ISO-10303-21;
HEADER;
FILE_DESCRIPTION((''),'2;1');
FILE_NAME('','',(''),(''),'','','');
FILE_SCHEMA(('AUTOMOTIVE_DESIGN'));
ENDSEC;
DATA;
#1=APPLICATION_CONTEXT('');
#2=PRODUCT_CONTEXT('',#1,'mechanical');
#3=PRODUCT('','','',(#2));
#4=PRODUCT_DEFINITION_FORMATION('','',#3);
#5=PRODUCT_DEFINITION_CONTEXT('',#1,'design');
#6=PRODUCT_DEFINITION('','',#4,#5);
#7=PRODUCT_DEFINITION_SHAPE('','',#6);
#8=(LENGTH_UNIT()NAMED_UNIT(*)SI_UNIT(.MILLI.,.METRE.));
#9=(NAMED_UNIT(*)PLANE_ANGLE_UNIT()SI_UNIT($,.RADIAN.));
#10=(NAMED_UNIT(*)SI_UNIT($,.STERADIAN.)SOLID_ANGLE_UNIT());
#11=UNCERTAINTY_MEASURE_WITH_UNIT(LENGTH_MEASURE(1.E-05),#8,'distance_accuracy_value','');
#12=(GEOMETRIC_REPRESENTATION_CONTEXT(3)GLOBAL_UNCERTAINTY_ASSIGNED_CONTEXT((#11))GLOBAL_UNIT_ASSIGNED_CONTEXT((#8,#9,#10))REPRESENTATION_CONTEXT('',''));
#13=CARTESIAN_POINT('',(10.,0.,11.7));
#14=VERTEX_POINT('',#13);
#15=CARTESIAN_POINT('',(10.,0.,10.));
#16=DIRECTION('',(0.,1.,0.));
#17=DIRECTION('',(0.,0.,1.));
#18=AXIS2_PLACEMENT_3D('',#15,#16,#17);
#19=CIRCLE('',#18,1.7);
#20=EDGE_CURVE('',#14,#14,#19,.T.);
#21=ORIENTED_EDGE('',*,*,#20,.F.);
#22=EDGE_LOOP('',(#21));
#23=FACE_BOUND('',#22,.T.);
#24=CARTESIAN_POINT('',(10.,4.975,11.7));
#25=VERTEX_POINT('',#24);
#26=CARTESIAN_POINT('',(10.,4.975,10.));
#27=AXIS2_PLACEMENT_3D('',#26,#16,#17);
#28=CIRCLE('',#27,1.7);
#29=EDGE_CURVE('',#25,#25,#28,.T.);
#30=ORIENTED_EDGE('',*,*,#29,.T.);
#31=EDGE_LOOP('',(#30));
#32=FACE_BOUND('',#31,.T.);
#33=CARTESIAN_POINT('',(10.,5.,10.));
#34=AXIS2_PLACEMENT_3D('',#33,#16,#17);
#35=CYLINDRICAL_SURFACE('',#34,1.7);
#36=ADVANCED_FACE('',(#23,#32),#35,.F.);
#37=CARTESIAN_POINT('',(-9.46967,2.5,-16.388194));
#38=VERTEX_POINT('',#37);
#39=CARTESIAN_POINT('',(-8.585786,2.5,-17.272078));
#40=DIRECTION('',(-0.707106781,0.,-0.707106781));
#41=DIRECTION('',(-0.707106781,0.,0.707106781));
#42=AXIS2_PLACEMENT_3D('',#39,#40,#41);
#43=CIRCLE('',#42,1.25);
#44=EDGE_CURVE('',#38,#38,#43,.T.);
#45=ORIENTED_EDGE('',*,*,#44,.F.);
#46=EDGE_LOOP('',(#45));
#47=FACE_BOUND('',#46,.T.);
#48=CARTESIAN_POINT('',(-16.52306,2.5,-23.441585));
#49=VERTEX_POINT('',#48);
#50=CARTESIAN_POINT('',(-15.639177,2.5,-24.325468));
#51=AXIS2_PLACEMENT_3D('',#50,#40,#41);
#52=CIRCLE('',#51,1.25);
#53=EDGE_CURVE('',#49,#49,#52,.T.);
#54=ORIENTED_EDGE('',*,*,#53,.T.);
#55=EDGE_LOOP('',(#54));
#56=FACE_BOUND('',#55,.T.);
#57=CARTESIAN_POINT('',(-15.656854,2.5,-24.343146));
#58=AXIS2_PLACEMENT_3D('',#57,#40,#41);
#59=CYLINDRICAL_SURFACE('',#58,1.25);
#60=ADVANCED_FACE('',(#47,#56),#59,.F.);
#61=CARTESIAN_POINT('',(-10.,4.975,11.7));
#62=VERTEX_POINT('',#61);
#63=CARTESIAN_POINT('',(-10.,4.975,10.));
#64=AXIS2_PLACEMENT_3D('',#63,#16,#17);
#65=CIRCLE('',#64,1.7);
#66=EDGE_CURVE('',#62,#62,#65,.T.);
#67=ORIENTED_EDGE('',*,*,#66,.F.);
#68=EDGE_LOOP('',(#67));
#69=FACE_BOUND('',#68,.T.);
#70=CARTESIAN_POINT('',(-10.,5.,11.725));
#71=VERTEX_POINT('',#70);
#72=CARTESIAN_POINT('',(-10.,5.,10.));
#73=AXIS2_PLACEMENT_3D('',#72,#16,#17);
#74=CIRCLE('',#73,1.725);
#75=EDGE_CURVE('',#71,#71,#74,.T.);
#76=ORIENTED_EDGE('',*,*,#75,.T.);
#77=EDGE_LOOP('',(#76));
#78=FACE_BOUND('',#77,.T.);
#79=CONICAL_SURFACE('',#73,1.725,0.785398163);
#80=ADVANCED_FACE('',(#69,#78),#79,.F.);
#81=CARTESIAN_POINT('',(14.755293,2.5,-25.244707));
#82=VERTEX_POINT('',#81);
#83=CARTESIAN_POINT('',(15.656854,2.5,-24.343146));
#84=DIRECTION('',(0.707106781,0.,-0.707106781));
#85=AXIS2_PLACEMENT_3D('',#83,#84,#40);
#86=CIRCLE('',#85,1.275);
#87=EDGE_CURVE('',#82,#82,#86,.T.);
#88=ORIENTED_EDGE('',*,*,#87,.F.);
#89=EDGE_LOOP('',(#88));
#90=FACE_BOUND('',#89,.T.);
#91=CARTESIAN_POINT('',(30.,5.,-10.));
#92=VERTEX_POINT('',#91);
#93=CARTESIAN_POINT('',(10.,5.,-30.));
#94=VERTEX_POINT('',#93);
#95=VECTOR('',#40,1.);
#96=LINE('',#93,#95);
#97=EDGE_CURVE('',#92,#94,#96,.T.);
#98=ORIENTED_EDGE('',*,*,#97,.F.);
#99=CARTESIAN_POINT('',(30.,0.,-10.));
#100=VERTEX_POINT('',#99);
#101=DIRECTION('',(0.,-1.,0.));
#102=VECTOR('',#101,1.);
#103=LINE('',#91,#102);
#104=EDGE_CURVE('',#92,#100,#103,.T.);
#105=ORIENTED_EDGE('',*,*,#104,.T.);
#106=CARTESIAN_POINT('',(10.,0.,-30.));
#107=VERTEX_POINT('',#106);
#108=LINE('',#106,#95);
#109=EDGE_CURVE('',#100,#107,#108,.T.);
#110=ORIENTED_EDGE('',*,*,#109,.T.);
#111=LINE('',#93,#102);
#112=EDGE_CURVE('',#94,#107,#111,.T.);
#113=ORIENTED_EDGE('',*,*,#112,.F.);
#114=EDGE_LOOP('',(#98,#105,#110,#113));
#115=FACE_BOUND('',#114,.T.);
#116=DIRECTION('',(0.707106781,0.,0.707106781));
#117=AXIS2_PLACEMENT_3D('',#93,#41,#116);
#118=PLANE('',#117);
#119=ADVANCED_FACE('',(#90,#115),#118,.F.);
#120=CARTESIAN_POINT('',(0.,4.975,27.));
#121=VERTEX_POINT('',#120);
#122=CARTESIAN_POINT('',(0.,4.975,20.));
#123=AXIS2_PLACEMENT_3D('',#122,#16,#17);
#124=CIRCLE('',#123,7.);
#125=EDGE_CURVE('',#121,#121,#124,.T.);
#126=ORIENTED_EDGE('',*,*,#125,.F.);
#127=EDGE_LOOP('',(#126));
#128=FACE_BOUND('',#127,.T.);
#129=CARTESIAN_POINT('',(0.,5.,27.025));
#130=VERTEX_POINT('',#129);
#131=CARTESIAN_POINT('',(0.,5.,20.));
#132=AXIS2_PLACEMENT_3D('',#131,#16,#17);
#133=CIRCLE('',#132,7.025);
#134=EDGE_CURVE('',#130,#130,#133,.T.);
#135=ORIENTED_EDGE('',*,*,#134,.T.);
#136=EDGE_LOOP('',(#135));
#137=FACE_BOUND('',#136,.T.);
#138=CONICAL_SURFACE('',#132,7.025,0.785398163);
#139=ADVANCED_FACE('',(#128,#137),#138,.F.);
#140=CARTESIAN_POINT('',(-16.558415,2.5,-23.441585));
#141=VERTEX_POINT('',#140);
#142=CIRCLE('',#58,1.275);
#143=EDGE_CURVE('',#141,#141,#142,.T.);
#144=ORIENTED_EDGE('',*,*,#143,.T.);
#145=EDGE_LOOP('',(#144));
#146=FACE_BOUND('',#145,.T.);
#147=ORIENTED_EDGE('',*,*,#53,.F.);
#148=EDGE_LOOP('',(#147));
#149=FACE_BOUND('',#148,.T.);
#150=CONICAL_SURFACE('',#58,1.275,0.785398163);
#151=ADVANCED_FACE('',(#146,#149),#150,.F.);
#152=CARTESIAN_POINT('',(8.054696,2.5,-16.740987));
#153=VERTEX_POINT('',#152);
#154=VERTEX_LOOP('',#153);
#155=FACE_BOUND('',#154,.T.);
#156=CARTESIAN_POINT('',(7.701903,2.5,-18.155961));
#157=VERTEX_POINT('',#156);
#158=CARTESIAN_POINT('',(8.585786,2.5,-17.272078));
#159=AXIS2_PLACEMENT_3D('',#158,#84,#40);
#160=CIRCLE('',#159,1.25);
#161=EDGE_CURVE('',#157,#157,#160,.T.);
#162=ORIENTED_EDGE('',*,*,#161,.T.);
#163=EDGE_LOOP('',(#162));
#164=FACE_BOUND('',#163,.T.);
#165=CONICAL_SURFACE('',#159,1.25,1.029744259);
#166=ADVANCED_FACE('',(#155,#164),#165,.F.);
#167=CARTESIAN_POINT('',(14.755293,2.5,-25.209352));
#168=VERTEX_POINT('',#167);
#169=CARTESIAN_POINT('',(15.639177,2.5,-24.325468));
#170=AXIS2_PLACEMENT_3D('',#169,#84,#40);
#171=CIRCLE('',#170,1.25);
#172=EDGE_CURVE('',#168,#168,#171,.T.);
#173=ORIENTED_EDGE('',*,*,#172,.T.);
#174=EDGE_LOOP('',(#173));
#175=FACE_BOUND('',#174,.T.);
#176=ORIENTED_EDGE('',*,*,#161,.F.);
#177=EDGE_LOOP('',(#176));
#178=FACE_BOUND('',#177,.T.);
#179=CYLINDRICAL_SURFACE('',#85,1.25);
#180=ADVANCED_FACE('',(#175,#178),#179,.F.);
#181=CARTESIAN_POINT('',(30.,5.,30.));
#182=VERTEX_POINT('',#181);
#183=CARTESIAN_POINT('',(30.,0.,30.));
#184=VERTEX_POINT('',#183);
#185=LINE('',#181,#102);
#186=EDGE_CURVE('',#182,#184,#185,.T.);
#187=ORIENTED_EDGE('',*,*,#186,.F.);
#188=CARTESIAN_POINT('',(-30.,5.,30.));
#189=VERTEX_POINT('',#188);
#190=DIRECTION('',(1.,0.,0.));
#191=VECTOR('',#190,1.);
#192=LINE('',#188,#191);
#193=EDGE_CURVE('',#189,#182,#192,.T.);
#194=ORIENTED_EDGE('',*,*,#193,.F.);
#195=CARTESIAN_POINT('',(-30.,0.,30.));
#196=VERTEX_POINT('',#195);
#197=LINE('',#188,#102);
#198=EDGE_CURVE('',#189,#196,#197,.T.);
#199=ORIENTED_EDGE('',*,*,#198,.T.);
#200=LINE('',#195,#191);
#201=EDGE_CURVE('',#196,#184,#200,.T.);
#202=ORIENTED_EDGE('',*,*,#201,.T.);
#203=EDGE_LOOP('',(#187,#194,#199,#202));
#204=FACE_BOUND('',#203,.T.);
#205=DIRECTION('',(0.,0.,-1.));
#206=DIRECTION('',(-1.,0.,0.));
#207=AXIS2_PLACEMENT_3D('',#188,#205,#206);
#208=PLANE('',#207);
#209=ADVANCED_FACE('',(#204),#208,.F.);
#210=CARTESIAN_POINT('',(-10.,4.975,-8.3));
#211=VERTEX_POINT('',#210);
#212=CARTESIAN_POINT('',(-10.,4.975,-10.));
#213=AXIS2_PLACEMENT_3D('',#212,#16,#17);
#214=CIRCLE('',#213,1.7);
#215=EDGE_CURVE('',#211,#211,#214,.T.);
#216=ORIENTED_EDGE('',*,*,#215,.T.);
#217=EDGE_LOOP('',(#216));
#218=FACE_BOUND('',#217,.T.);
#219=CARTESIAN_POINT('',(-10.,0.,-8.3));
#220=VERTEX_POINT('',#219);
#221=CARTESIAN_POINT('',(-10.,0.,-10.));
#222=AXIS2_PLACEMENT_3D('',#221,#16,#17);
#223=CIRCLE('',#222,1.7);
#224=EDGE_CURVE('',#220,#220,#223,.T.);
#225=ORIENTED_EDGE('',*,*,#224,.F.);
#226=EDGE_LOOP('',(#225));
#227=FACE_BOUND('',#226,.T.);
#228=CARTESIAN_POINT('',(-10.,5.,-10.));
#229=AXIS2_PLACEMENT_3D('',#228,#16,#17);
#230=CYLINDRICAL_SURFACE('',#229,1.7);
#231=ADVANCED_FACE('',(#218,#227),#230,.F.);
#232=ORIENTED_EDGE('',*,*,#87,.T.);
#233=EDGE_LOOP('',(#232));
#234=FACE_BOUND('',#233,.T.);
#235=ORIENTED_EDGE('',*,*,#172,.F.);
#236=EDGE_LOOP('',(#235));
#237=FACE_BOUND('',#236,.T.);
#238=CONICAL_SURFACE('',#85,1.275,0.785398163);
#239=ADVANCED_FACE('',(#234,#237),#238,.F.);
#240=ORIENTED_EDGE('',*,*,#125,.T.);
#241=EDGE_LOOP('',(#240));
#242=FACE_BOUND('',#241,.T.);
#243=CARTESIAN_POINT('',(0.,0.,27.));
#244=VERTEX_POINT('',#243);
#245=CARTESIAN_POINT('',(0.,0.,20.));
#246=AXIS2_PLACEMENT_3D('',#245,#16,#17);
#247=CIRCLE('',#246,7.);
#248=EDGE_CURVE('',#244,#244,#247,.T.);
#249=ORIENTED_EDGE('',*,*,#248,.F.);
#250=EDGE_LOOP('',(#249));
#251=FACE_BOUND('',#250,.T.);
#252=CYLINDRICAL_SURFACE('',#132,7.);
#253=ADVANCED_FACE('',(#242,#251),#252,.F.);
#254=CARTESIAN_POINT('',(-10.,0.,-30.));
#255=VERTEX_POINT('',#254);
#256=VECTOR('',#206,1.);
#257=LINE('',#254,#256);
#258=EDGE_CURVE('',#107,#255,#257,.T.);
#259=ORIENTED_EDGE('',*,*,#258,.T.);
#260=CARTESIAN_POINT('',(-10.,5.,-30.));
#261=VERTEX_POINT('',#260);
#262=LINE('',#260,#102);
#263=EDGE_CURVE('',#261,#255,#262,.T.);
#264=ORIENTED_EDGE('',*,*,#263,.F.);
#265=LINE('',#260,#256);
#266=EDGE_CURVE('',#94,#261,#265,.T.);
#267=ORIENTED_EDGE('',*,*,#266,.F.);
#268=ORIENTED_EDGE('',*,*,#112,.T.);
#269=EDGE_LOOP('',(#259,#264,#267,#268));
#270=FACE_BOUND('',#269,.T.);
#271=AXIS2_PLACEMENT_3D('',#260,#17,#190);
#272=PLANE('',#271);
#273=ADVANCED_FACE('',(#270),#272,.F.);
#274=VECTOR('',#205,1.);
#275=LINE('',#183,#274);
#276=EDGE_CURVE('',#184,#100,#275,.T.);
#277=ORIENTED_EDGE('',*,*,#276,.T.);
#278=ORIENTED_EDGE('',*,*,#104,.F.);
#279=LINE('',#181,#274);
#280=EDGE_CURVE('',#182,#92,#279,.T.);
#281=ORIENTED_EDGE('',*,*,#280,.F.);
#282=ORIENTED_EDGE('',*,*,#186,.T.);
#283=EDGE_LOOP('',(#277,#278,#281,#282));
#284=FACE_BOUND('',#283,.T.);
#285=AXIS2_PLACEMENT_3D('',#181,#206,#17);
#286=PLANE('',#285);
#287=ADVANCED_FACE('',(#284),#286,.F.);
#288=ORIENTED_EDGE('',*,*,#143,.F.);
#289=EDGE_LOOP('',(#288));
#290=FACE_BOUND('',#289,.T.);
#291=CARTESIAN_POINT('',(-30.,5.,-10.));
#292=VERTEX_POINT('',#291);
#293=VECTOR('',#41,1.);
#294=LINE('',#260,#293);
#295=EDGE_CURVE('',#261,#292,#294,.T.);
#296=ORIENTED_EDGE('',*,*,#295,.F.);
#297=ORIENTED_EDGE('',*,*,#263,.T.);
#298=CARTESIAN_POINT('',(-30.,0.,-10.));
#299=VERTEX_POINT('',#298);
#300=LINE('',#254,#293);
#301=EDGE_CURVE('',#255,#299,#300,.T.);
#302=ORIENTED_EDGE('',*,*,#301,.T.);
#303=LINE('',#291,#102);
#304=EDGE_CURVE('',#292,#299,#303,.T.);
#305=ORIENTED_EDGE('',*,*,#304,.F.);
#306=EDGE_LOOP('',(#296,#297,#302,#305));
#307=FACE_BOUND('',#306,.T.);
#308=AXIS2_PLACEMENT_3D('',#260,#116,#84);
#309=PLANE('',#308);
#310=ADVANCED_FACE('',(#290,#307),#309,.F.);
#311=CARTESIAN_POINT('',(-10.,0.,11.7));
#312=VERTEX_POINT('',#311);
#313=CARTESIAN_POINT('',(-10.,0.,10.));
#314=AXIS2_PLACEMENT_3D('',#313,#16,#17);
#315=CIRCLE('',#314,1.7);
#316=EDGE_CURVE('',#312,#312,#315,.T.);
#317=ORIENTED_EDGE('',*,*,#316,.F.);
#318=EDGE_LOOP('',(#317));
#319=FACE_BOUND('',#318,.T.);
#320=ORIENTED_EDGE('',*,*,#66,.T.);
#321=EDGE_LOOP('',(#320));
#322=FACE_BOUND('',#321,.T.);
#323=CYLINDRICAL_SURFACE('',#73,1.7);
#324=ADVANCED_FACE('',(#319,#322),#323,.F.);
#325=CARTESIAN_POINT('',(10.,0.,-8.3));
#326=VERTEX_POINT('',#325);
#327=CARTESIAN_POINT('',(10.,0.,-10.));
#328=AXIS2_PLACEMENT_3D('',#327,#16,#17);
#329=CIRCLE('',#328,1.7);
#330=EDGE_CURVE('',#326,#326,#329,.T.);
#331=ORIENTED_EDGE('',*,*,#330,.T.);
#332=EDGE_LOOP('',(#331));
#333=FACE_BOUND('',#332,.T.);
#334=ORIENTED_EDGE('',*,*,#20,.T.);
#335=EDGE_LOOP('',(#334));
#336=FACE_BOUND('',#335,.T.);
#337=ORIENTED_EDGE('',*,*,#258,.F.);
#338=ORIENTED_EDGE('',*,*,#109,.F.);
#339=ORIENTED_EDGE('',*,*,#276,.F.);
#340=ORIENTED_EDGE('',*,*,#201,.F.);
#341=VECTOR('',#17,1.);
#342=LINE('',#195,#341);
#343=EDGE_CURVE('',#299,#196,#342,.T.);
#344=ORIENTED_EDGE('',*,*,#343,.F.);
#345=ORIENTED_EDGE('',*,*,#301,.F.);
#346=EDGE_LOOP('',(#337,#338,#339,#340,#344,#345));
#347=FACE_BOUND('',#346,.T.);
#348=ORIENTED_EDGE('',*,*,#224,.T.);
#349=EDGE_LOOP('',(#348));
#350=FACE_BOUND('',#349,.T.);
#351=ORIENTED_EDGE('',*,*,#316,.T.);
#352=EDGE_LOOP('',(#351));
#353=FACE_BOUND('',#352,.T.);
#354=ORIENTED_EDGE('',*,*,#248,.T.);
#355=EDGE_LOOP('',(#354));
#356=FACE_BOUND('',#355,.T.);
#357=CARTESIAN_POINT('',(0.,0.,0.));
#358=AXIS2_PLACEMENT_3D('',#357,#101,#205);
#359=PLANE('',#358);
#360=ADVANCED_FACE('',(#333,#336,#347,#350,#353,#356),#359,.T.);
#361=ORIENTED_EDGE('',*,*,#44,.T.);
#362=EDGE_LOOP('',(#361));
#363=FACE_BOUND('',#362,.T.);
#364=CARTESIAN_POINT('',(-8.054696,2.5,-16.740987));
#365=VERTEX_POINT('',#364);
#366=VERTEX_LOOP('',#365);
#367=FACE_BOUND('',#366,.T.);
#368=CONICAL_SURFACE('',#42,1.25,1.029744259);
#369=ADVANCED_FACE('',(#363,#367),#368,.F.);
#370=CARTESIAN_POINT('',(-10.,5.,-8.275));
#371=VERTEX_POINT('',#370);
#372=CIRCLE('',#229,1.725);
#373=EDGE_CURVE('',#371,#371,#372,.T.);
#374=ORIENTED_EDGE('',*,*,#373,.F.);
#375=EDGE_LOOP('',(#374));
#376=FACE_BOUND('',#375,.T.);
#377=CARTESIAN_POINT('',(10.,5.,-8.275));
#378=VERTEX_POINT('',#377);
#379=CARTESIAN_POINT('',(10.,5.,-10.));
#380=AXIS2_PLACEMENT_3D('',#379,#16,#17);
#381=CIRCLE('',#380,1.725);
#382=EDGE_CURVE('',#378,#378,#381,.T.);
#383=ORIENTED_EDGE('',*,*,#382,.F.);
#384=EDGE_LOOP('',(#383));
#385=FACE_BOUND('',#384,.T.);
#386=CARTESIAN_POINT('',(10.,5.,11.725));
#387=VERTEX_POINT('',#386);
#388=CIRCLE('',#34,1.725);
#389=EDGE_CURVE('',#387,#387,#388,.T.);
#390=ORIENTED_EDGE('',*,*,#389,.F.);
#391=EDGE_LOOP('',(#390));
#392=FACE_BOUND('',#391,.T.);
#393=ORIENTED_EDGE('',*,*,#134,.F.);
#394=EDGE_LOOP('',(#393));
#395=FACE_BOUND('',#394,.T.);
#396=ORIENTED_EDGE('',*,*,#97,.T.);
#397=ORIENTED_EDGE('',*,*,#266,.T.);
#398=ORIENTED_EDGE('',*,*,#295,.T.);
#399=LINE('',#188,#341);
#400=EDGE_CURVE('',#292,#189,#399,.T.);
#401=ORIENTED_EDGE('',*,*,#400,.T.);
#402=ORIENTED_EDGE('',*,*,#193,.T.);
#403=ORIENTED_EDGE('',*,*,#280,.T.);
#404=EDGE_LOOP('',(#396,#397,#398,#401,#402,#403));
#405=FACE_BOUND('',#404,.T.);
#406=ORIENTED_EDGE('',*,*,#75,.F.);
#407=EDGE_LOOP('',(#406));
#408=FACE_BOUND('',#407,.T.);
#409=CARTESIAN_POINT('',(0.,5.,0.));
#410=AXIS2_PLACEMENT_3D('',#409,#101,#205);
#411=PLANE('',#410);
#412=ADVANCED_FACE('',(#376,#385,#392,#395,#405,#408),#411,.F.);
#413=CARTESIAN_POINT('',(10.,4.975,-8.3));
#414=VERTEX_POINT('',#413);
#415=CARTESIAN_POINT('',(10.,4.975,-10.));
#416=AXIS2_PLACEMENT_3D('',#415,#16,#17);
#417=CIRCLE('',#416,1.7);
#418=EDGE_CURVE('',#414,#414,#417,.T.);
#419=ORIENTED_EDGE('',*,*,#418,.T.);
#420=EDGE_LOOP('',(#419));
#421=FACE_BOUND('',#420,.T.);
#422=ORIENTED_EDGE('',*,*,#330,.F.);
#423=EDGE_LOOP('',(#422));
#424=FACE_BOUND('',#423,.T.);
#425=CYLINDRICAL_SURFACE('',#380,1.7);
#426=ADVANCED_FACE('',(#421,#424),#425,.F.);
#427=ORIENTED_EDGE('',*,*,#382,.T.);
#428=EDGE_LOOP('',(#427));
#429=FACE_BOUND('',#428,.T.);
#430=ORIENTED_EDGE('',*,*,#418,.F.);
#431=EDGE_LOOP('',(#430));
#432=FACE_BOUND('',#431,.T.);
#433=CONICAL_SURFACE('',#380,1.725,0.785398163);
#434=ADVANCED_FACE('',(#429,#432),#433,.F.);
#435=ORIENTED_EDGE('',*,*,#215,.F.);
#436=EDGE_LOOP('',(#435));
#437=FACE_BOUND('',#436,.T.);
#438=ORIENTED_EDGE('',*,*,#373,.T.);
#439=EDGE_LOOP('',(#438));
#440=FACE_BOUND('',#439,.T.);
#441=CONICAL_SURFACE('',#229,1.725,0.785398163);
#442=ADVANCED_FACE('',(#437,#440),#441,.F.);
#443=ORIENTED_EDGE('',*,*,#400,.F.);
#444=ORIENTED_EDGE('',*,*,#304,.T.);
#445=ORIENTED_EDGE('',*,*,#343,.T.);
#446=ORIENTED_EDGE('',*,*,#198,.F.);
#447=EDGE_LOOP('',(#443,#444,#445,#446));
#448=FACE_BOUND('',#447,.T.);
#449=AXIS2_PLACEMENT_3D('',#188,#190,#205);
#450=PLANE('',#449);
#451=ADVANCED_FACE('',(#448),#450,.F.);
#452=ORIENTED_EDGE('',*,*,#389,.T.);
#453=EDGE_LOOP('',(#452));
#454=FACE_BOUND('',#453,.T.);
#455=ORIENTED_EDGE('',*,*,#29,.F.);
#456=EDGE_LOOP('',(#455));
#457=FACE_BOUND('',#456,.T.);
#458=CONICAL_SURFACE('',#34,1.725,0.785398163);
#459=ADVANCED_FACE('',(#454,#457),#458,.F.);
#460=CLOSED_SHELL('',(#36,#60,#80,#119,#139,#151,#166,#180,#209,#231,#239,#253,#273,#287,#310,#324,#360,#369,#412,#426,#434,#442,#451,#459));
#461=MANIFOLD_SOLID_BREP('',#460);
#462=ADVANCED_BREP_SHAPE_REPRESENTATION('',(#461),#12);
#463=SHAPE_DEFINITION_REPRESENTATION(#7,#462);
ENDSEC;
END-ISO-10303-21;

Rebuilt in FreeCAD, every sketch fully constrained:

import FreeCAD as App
import Part
import Sketcher
Q = App.Units.Quantity


def add_polygon(sketch, points):
    """Adds a closed chain of lines whose ends are joined by coincident constraints."""
    first, n = sketch.GeometryCount, len(points)
    for a, b in zip(points, points[1:] + points[:1]):
        sketch.addGeometry(Part.LineSegment(App.Vector(*a, 0), App.Vector(*b, 0)), False)
    for i in range(n):
        sketch.addConstraint(Sketcher.Constraint("Coincident", first + i, 2, first + (i + 1) % n, 1))

doc = App.newDocument("Part")
body = doc.addObject("PartDesign::Body", "Body")

sketch1 = body.newObject("Sketcher::SketchObject", "Sketch")
sketch1.AttachmentSupport = (doc.getObject("XZ_Plane"), [""])
sketch1.MapMode = "FlatFace"
add_polygon(sketch1, [(-10, -30), (-30, -10), (-30, 30), (30, 30), (30, -10), (10, -30)])
sketch1.addConstraint([
    Sketcher.Constraint("Vertical", 1),
    Sketcher.Constraint("Horizontal", 2),
    Sketcher.Constraint("Vertical", 3),
    Sketcher.Constraint("Horizontal", 5),
    Sketcher.Constraint("Symmetric", 0, 2, 3, 2, -2),
    Sketcher.Constraint("Perpendicular", 0, 4),
    Sketcher.Constraint("Equal", 0, 4),
    Sketcher.Constraint("DistanceX", 2, 1, 2, 2, Q("60 mm")),
    Sketcher.Constraint("DistanceX", 5, 2, 5, 1, Q("20 mm")),
    Sketcher.Constraint("DistanceY", 1, 1, 1, 2, Q("40 mm")),
    Sketcher.Constraint("DistanceY", 0, 2, -1, 1, Q("10 mm")),
])
pad1 = body.newObject("PartDesign::Pad", "Pad")
pad1.Profile = sketch1
pad1.Length = 5
pad1.Reversed = True

sketch2 = body.newObject("Sketcher::SketchObject", "Sketch001")
sketch2.AttachmentSupport = (doc.getObject("XZ_Plane"), [""])
sketch2.MapMode = "FlatFace"
sketch2.AttachmentOffset = App.Placement(App.Vector(0, 0, -2.5), App.Rotation())
add_polygon(sketch2, [(-8.055, -16.741), (-15.657, -24.343), (-16.558, -23.442), (-16.523, -23.442), (-9.47, -16.388)])
sketch2.addGeometry(Part.LineSegment(App.Vector(-15.657, -24.343, 0), App.Vector(-8.055, -16.741, 0)), True)
sketch2.addConstraint([
    Sketcher.Constraint("Horizontal", 2),
    Sketcher.Constraint("Coincident", 5, 1, 0, 2),
    Sketcher.Constraint("Coincident", 5, 2, 4, 2),
    Sketcher.Constraint("Perpendicular", 0, 1),
    Sketcher.Constraint("Perpendicular", 1, 3),
    Sketcher.Constraint("Angle", 0, Q("-135 deg")),
    Sketcher.Constraint("Angle", 4, Q("-14 deg")),
    Sketcher.Constraint("Distance", 1, Q("1.275 mm")),
    Sketcher.Constraint("Distance", 3, Q("9.975 mm")),
    Sketcher.Constraint("Distance", 4, Q("1.458292 mm")),
    Sketcher.Constraint("DistanceX", 2, 2, -1, 1, Q("16.52306 mm")),
    Sketcher.Constraint("DistanceY", 0, 2, -1, 1, Q("24.343146 mm")),
])
groove = body.newObject("PartDesign::Groove", "Groove")
groove.Profile = sketch2
groove.ReferenceAxis = (sketch2, ["Axis0"])
groove.Angle = 360

sketch3 = body.newObject("Sketcher::SketchObject", "Sketch002")
sketch3.AttachmentSupport = (doc.getObject("YZ_Plane"), [""])
sketch3.MapMode = "FlatFace"
add_polygon(sketch3, [(0, 20), (5, 20), (5, 27.025), (4.975, 27), (0, 27)])
sketch3.addGeometry(Part.LineSegment(App.Vector(5, 20, 0), App.Vector(0, 20, 0)), True)
sketch3.addConstraint([
    Sketcher.Constraint("Horizontal", 0),
    Sketcher.Constraint("Vertical", 1),
    Sketcher.Constraint("Horizontal", 3),
    Sketcher.Constraint("Vertical", 4),
    Sketcher.Constraint("Horizontal", 5),
    Sketcher.Constraint("Coincident", 5, 1, 0, 2),
    Sketcher.Constraint("PointOnObject", 3, 2, -2),
    Sketcher.Constraint("PointOnObject", 5, 2, -2),
    Sketcher.Constraint("DistanceX", 0, 1, 0, 2, Q("5 mm")),
    Sketcher.Constraint("DistanceY", 4, 2, 4, 1, Q("7 mm")),
    Sketcher.Constraint("Angle", 2, Q("-135 deg")),
    Sketcher.Constraint("DistanceY", -1, 1, 0, 2, Q("20 mm")),
    Sketcher.Constraint("DistanceX", 3, 2, 3, 1, Q("4.975 mm")),
])
groove2 = body.newObject("PartDesign::Groove", "Groove001")
groove2.Profile = sketch3
groove2.ReferenceAxis = (sketch3, ["Axis0"])
groove2.Angle = 360
doc.recompute()

mirrored = body.newObject("PartDesign::Mirrored", "Mirrored")
mirrored.Originals = [groove]
mirrored.MirrorPlane = (doc.getObject("YZ_Plane"), [""])
body.Tip = mirrored

sketch4 = body.newObject("Sketcher::SketchObject", "Sketch003")
sketch4.AttachmentSupport = (doc.getObject("XZ_Plane"), [""])
sketch4.MapMode = "FlatFace"
sketch4.AttachmentOffset = App.Placement(App.Vector(0, 0, -5), App.Rotation())
sketch4.addGeometry([
    Part.Circle(App.Vector(-10, -10, 0), App.Vector(0, 0, 1), 1.7),
    Part.Circle(App.Vector(10, -10, 0), App.Vector(0, 0, 1), 1.7),
    Part.Circle(App.Vector(10, 10, 0), App.Vector(0, 0, 1), 1.7),
    Part.Circle(App.Vector(-10, 10, 0), App.Vector(0, 0, 1), 1.7),
], False)
sketch4.addConstraint([
    Sketcher.Constraint("Equal", 0, 1),
    Sketcher.Constraint("Equal", 1, 2),
    Sketcher.Constraint("Equal", 2, 3),
    Sketcher.Constraint("Symmetric", 0, 3, 2, 3, -1, 1),
    Sketcher.Constraint("Symmetric", 1, 3, 3, 3, -1, 1),
    Sketcher.Constraint("Symmetric", 0, 3, 1, 3, -2),
    Sketcher.Constraint("Diameter", 0, Q("3.4 mm")),
    Sketcher.Constraint("DistanceX", 0, 3, -1, 1, Q("10 mm")),
    Sketcher.Constraint("DistanceY", 0, 3, -1, 1, Q("10 mm")),
])
doc.recompute()
hole = body.newObject("PartDesign::Hole", "Hole")
hole.Profile = sketch4
hole.ThreadType = "None"
hole.Diameter = 3.4
hole.DepthType = "ThroughAll"
hole.HoleCutType = "Countersink"
hole.HoleCutDiameter = 3.45
hole.HoleCutCountersinkAngle = 90
hole.Reversed = True

doc.recompute()
